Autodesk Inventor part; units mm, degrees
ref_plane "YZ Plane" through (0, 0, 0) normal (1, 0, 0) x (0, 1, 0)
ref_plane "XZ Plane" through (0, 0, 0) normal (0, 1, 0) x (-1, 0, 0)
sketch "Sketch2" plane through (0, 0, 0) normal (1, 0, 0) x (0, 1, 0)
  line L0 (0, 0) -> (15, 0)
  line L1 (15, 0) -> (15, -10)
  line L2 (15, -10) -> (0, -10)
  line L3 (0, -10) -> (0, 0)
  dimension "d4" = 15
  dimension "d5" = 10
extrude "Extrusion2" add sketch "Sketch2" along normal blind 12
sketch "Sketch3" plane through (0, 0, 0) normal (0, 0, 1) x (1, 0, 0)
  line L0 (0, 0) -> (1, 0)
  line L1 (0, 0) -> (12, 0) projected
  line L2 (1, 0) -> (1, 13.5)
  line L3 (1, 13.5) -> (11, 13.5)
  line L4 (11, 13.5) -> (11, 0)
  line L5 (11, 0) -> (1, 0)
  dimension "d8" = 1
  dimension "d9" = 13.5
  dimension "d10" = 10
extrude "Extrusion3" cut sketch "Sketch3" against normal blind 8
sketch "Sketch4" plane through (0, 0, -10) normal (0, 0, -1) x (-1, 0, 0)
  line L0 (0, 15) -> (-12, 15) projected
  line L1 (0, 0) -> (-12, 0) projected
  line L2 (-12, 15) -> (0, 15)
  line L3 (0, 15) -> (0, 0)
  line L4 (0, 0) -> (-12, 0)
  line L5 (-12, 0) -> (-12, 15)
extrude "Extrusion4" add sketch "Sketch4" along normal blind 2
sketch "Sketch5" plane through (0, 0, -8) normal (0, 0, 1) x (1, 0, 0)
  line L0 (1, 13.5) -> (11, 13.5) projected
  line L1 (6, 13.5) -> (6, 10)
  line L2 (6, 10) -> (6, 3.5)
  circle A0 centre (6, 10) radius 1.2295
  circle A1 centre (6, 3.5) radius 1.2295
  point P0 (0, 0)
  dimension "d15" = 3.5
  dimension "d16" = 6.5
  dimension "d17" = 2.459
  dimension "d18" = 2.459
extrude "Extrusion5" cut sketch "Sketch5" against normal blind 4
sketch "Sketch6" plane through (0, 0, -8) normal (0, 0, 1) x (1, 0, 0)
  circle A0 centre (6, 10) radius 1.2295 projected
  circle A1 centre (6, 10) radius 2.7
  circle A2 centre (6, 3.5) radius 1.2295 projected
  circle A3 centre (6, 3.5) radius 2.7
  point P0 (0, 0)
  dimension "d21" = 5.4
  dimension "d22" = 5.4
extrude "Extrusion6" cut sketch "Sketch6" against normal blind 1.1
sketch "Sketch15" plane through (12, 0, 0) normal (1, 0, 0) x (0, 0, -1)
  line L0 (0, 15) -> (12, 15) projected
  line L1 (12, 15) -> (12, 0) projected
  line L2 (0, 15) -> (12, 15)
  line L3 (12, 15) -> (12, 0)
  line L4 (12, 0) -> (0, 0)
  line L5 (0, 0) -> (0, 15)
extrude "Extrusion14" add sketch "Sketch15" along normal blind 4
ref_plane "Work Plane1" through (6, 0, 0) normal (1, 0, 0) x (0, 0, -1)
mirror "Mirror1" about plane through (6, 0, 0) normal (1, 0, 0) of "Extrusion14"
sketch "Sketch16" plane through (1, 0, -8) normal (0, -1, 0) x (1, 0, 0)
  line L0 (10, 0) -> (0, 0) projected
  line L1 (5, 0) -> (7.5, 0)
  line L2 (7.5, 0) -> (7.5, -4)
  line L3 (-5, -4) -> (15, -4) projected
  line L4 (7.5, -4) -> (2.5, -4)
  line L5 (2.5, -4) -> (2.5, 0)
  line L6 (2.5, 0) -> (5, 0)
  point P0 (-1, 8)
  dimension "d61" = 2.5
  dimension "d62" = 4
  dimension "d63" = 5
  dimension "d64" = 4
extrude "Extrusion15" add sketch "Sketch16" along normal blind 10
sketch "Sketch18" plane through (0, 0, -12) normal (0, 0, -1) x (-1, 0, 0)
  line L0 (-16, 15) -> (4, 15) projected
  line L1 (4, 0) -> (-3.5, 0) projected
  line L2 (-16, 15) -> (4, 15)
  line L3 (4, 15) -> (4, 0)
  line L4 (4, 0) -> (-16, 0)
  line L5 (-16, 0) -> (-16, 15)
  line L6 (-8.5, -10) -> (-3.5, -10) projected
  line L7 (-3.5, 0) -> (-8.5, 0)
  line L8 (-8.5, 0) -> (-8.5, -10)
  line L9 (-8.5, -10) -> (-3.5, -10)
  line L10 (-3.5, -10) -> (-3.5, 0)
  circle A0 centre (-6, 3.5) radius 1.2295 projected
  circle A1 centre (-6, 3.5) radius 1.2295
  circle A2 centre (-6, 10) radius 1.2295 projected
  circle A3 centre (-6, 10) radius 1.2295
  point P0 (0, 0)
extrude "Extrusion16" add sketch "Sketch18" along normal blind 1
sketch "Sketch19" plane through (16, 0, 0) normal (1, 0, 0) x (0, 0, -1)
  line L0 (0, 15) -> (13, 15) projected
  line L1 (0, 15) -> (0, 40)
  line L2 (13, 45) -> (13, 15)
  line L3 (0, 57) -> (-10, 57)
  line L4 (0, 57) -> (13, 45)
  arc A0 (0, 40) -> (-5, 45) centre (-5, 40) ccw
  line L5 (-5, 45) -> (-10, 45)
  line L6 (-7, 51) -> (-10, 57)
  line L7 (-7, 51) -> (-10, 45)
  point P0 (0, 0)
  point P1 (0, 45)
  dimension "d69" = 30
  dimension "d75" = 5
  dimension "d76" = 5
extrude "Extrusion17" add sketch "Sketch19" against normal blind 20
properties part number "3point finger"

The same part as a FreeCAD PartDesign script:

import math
import FreeCAD as App
import Part
import Sketcher

doc = App.newDocument("Part")
body = doc.addObject("PartDesign::Body", "Body")

sketch1 = body.newObject("Sketcher::SketchObject", "Sketch")
sketch1.AttachmentSupport = (doc.getObject("YZ_Plane"), [""])
sketch1.MapMode = "FlatFace"
sketch1.addGeometry([
    Part.LineSegment(App.Vector(15, 0, 0), App.Vector(0, 0, 0)),
    Part.LineSegment(App.Vector(0, 0, 0), App.Vector(0, -10, 0)),
    Part.LineSegment(App.Vector(0, -10, 0), App.Vector(15, -10, 0)),
    Part.LineSegment(App.Vector(15, -10, 0), App.Vector(15, 0, 0)),
], False)
sketch1.addConstraint([
    Sketcher.Constraint("Coincident", 0, 2, 1, 1),
    Sketcher.Constraint("Coincident", 1, 2, 2, 1),
    Sketcher.Constraint("Coincident", 2, 2, 3, 1),
    Sketcher.Constraint("Coincident", 3, 2, 0, 1),
    Sketcher.Constraint("Horizontal", 0),
    Sketcher.Constraint("Vertical", 1),
    Sketcher.Constraint("Horizontal", 2),
    Sketcher.Constraint("Vertical", 3),
    Sketcher.Constraint("Coincident", 0, 2, -1, 1),
    Sketcher.Constraint("DistanceX", 0, 2, 0, 1, 15.0),
    Sketcher.Constraint("DistanceY", 1, 2, 1, 1, 10.0),
])
pad1 = body.newObject("PartDesign::Pad", "Pad")
pad1.Profile = sketch1
pad1.Length = 12

sketch2 = body.newObject("Sketcher::SketchObject", "Sketch001")
sketch2.AttachmentSupport = (doc.getObject("XY_Plane"), [""])
sketch2.MapMode = "FlatFace"
sketch2.addGeometry([
    Part.LineSegment(App.Vector(1, 14, 0), App.Vector(1, 0, 0)),
    Part.LineSegment(App.Vector(1, 0, 0), App.Vector(11, 0, 0)),
    Part.LineSegment(App.Vector(11, 0, 0), App.Vector(11, 14, 0)),
    Part.LineSegment(App.Vector(11, 14, 0), App.Vector(1, 14, 0)),
], False)
sketch2.addConstraint([
    Sketcher.Constraint("Coincident", 0, 2, 1, 1),
    Sketcher.Constraint("Coincident", 1, 2, 2, 1),
    Sketcher.Constraint("Coincident", 2, 2, 3, 1),
    Sketcher.Constraint("Coincident", 3, 2, 0, 1),
    Sketcher.Constraint("Vertical", 0),
    Sketcher.Constraint("Horizontal", 1),
    Sketcher.Constraint("Vertical", 2),
    Sketcher.Constraint("Horizontal", 3),
    Sketcher.Constraint("PointOnObject", 0, 2, -1),
    Sketcher.Constraint("DistanceX", 1, 1, 1, 2, 10.0),
    Sketcher.Constraint("DistanceY", 0, 2, 0, 1, 13.5),
    Sketcher.Constraint("DistanceX", -1, 1, 0, 2, 1.0),
])
pocket1 = body.newObject("PartDesign::Pocket", "Pocket")
pocket1.Profile = sketch2
pocket1.Length = 8

sketch3 = body.newObject("Sketcher::SketchObject", "Sketch002")
sketch3.AttachmentSupport = (doc.getObject("XY_Plane"), [""])
sketch3.MapMode = "FlatFace"
sketch3.AttachmentOffset = App.Placement(App.Vector(0, 0, -10), App.Rotation())
sketch3.addGeometry([
    Part.LineSegment(App.Vector(0, 0, 0), App.Vector(0, 15, 0)),
    Part.LineSegment(App.Vector(0, 15, 0), App.Vector(12, 15, 0)),
    Part.LineSegment(App.Vector(12, 15, 0), App.Vector(12, 0, 0)),
    Part.LineSegment(App.Vector(12, 0, 0), App.Vector(0, 0, 0)),
], False)
sketch3.addConstraint([
    Sketcher.Constraint("Coincident", 0, 2, 1, 1),
    Sketcher.Constraint("Coincident", 1, 2, 2, 1),
    Sketcher.Constraint("Coincident", 2, 2, 3, 1),
    Sketcher.Constraint("Coincident", 3, 2, 0, 1),
    Sketcher.Constraint("Vertical", 0),
    Sketcher.Constraint("Horizontal", 1),
    Sketcher.Constraint("Vertical", 2),
    Sketcher.Constraint("Horizontal", 3),
    Sketcher.Constraint("Coincident", 3, 2, -1, 1),
    Sketcher.Constraint("DistanceX", 1, 1, 1, 2, 12.0),
    Sketcher.Constraint("DistanceY", 0, 1, 0, 2, 15.0),
])
pad2 = body.newObject("PartDesign::Pad", "Pad001")
pad2.Profile = sketch3
pad2.Length = 2
pad2.Reversed = True

sketch4 = body.newObject("Sketcher::SketchObject", "Sketch003")
sketch4.AttachmentSupport = (doc.getObject("XY_Plane"), [""])
sketch4.MapMode = "FlatFace"
sketch4.AttachmentOffset = App.Placement(App.Vector(0, 0, -8), App.Rotation())
sketch4.addGeometry([
    Part.Circle(App.Vector(6, 10, 0), App.Vector(0, 0, 1), 1.2),
    Part.Circle(App.Vector(6, 3.5, 0), App.Vector(0, 0, 1), 1.2),
], False)
sketch4.addConstraint([
    Sketcher.Constraint("Equal", 0, 1),
    Sketcher.Constraint("Vertical", 0, 3, 1, 3),
    Sketcher.Constraint("Diameter", 0, 2.459),
    Sketcher.Constraint("DistanceY", -1, 1, 1, 3, 3.5),
    Sketcher.Constraint("DistanceY", 1, 3, 0, 3, 6.5),
    Sketcher.Constraint("DistanceX", -1, 1, 0, 3, 6.0),
])
pocket2 = body.newObject("PartDesign::Pocket", "Pocket001")
pocket2.Profile = sketch4
pocket2.Length = 4

sketch5 = body.newObject("Sketcher::SketchObject", "Sketch004")
sketch5.AttachmentSupport = (doc.getObject("XY_Plane"), [""])
sketch5.MapMode = "FlatFace"
sketch5.AttachmentOffset = App.Placement(App.Vector(0, 0, -8), App.Rotation())
sketch5.addGeometry([
    Part.Circle(App.Vector(6, 10, 0), App.Vector(0, 0, 1), 2.7),
    Part.Circle(App.Vector(6, 10, 0), App.Vector(0, 0, 1), 1.2),
    Part.Circle(App.Vector(6, 3.5, 0), App.Vector(0, 0, 1), 2.7),
    Part.Circle(App.Vector(6, 3.5, 0), App.Vector(0, 0, 1), 1.2),
], False)
sketch5.addConstraint([
    Sketcher.Constraint("Coincident", 1, 3, 0, 3),
    Sketcher.Constraint("Coincident", 3, 3, 2, 3),
    Sketcher.Constraint("Equal", 0, 2),
    Sketcher.Constraint("Equal", 1, 3),
    Sketcher.Constraint("Vertical", 1, 3, 2, 3),
    Sketcher.Constraint("Diameter", 0, 5.4),
    Sketcher.Constraint("Diameter", 1, 2.459),
    Sketcher.Constraint("DistanceX", -1, 1, 0, 3, 6.0),
    Sketcher.Constraint("DistanceY", -1, 1, 0, 3, 10.0),
    Sketcher.Constraint("DistanceY", -1, 1, 2, 3, 3.5),
])
pocket3 = body.newObject("PartDesign::Pocket", "Pocket002")
pocket3.Profile = sketch5
pocket3.Length = 1.1

sketch6 = body.newObject("Sketcher::SketchObject", "Sketch005")
sketch6.AttachmentSupport = (doc.getObject("YZ_Plane"), [""])
sketch6.MapMode = "FlatFace"
sketch6.AttachmentOffset = App.Placement(App.Vector(0, 0, 12), App.Rotation())
sketch6.addGeometry([
    Part.LineSegment(App.Vector(15, -12, 0), App.Vector(15, 0, 0)),
    Part.LineSegment(App.Vector(15, 0, 0), App.Vector(0, 0, 0)),
    Part.LineSegment(App.Vector(0, 0, 0), App.Vector(0, -12, 0)),
    Part.LineSegment(App.Vector(0, -12, 0), App.Vector(15, -12, 0)),
], False)
sketch6.addConstraint([
    Sketcher.Constraint("Coincident", 0, 2, 1, 1),
    Sketcher.Constraint("Coincident", 1, 2, 2, 1),
    Sketcher.Constraint("Coincident", 2, 2, 3, 1),
    Sketcher.Constraint("Coincident", 3, 2, 0, 1),
    Sketcher.Constraint("Vertical", 0),
    Sketcher.Constraint("Horizontal", 1),
    Sketcher.Constraint("Vertical", 2),
    Sketcher.Constraint("Horizontal", 3),
    Sketcher.Constraint("Coincident", 1, 2, -1, 1),
    Sketcher.Constraint("DistanceX", 1, 2, 1, 1, 15.0),
    Sketcher.Constraint("DistanceY", 0, 1, 0, 2, 12.0),
])
pad3 = body.newObject("PartDesign::Pad", "Pad002")
pad3.Profile = sketch6
pad3.Length = 4
doc.recompute()

datumplane = body.newObject("PartDesign::Plane", "DatumPlane")
datumplane.AttachmentSupport = (doc.getObject("YZ_Plane"), [""])
datumplane.MapMode = "FlatFace"
datumplane.AttachmentOffset = App.Placement(App.Vector(0, 0, 6), App.Rotation())
mirrored = body.newObject("PartDesign::Mirrored", "Mirrored")
mirrored.Originals = [pad3]
mirrored.MirrorPlane = (datumplane, [""])
body.Tip = mirrored

sketch7 = body.newObject("Sketcher::SketchObject", "Sketch006")
sketch7.AttachmentSupport = (doc.getObject("XZ_Plane"), [""])
sketch7.MapMode = "FlatFace"
sketch7.addGeometry([
    Part.LineSegment(App.Vector(8.5, -12, 0), App.Vector(8.5, -8, 0)),
    Part.LineSegment(App.Vector(8.5, -8, 0), App.Vector(3.5, -8, 0)),
    Part.LineSegment(App.Vector(3.5, -8, 0), App.Vector(3.5, -12, 0)),
    Part.LineSegment(App.Vector(3.5, -12, 0), App.Vector(8.5, -12, 0)),
], False)
sketch7.addConstraint([
    Sketcher.Constraint("Coincident", 0, 2, 1, 1),
    Sketcher.Constraint("Coincident", 1, 2, 2, 1),
    Sketcher.Constraint("Coincident", 2, 2, 3, 1),
    Sketcher.Constraint("Coincident", 3, 2, 0, 1),
    Sketcher.Constraint("Vertical", 0),
    Sketcher.Constraint("Horizontal", 1),
    Sketcher.Constraint("Vertical", 2),
    Sketcher.Constraint("Horizontal", 3),
    Sketcher.Constraint("DistanceX", 1, 2, 1, 1, 5.0),
    Sketcher.Constraint("DistanceY", 0, 1, 0, 2, 4.0),
    Sketcher.Constraint("DistanceY", 0, 2, -1, 1, 8.0),
    Sketcher.Constraint("DistanceX", -1, 1, 0, 2, 8.5),
])
pad4 = body.newObject("PartDesign::Pad", "Pad003")
pad4.Profile = sketch7
pad4.Length = 10

sketch8 = body.newObject("Sketcher::SketchObject", "Sketch007")
sketch8.AttachmentSupport = (doc.getObject("XY_Plane"), [""])
sketch8.MapMode = "FlatFace"
sketch8.AttachmentOffset = App.Placement(App.Vector(0, 0, -12), App.Rotation())
sketch8.addGeometry([
    Part.LineSegment(App.Vector(-4, 15, 0), App.Vector(16, 15, 0)),
    Part.LineSegment(App.Vector(16, 15, 0), App.Vector(16, 0, 0)),
    Part.LineSegment(App.Vector(16, 0, 0), App.Vector(8.5, 0, 0)),
    Part.LineSegment(App.Vector(8.5, 0, 0), App.Vector(8.5, -10, 0)),
    Part.LineSegment(App.Vector(8.5, -10, 0), App.Vector(3.5, -10, 0)),
    Part.LineSegment(App.Vector(3.5, -10, 0), App.Vector(3.5, 0, 0)),
    Part.LineSegment(App.Vector(3.5, 0, 0), App.Vector(-4, 0, 0)),
    Part.LineSegment(App.Vector(-4, 0, 0), App.Vector(-4, 15, 0)),
    Part.Circle(App.Vector(6, 3.5, 0), App.Vector(0, 0, 1), 1.2),
    Part.Circle(App.Vector(6, 10, 0), App.Vector(0, 0, 1), 1.2),
], False)
sketch8.addConstraint([
    Sketcher.Constraint("Coincident", 0, 2, 1, 1),
    Sketcher.Constraint("Coincident", 1, 2, 2, 1),
    Sketcher.Constraint("Coincident", 2, 2, 3, 1),
    Sketcher.Constraint("Coincident", 3, 2, 4, 1),
    Sketcher.Constraint("Coincident", 4, 2, 5, 1),
    Sketcher.Constraint("Coincident", 5, 2, 6, 1),
    Sketcher.Constraint("Coincident", 6, 2, 7, 1),
    Sketcher.Constraint("Coincident", 7, 2, 0, 1),
    Sketcher.Constraint("Horizontal", 0),
    Sketcher.Constraint("Vertical", 1),
    Sketcher.Constraint("Horizontal", 2),
    Sketcher.Constraint("Vertical", 3),
    Sketcher.Constraint("Horizontal", 4),
    Sketcher.Constraint("Vertical", 5),
    Sketcher.Constraint("Horizontal", 6),
    Sketcher.Constraint("Vertical", 7),
    Sketcher.Constraint("Equal", 8, 9),
    Sketcher.Constraint("PointOnObject", 1, 2, -1),
    Sketcher.Constraint("PointOnObject", 5, 2, -1),
    Sketcher.Constraint("Vertical", 8, 3, 9, 3),
    Sketcher.Constraint("Equal", 2, 6),
    Sketcher.Constraint("DistanceX", 0, 1, 0, 2, 20.0),
    Sketcher.Constraint("DistanceX", 4, 2, 4, 1, 5.0),
    Sketcher.Constraint("DistanceY", 1, 2, 1, 1, 15.0),
    Sketcher.Constraint("DistanceY", 3, 2, 3, 1, 10.0),
    Sketcher.Constraint("Diameter", 8, 2.459),
    Sketcher.Constraint("DistanceX", -1, 1, 8, 3, 6.0),
    Sketcher.Constraint("DistanceY", -1, 1, 9, 3, 10.0),
    Sketcher.Constraint("DistanceX", -1, 1, 0, 2, 16.0),
    Sketcher.Constraint("DistanceY", -1, 1, 8, 3, 3.5),
])
pad5 = body.newObject("PartDesign::Pad", "Pad004")
pad5.Profile = sketch8
pad5.Length = 1
pad5.Reversed = True

sketch9 = body.newObject("Sketcher::SketchObject", "Sketch008")
sketch9.AttachmentSupport = (doc.getObject("YZ_Plane"), [""])
sketch9.MapMode = "FlatFace"
sketch9.AttachmentOffset = App.Placement(App.Vector(0, 0, 16), App.Rotation())
sketch9.addGeometry([
    Part.LineSegment(App.Vector(40, 0, 0), App.Vector(15, 0, 0)),
    Part.LineSegment(App.Vector(15, 0, 0), App.Vector(15, -13, 0)),
    Part.LineSegment(App.Vector(15, -13, 0), App.Vector(45, -13, 0)),
    Part.LineSegment(App.Vector(45, -13, 0), App.Vector(57, 0, 0)),
    Part.LineSegment(App.Vector(57, 0, 0), App.Vector(57, 10, 0)),
    Part.LineSegment(App.Vector(57, 10, 0), App.Vector(51, 7, 0)),
    Part.LineSegment(App.Vector(51, 7, 0), App.Vector(45, 10, 0)),
    Part.LineSegment(App.Vector(45, 10, 0), App.Vector(45, 5, 0)),
    Part.ArcOfCircle(Part.Circle(App.Vector(40, 5, 0), App.Vector(0, 0, 1), 5), math.radians(-90), math.radians(0)),
], False)
sketch9.addConstraint([
    Sketcher.Constraint("Coincident", 0, 2, 1, 1),
    Sketcher.Constraint("Coincident", 1, 2, 2, 1),
    Sketcher.Constraint("Coincident", 2, 2, 3, 1),
    Sketcher.Constraint("Coincident", 3, 2, 4, 1),
    Sketcher.Constraint("Coincident", 4, 2, 5, 1),
    Sketcher.Constraint("Coincident", 5, 2, 6, 1),
    Sketcher.Constraint("Coincident", 6, 2, 7, 1),
    Sketcher.Constraint("Tangent", 7, 2, 8, 2),
    Sketcher.Constraint("Tangent", 8, 1, 0, 1),
    Sketcher.Constraint("Horizontal", 0),
    Sketcher.Constraint("Vertical", 1),
    Sketcher.Constraint("Horizontal", 2),
    Sketcher.Constraint("Vertical", 4),
    Sketcher.Constraint("Vertical", 7),
    Sketcher.Constraint("PointOnObject", 0, 2, -1),
    Sketcher.Constraint("PointOnObject", 3, 2, -1),
    Sketcher.Constraint("Horizontal", 4, 2, 6, 2),
    Sketcher.Constraint("Vertical", 2, 2, 6, 2),
    Sketcher.Constraint("Equal", 5, 6),
    Sketcher.Constraint("Radius", 8, 5.0),
    Sketcher.Constraint("DistanceX", 2, 1, 2, 2, 30.0),
    Sketcher.Constraint("DistanceY", 7, 2, 7, 1, 5.0),
    Sketcher.Constraint("DistanceY", 1, 2, 1, 1, 13.0),
    Sketcher.Constraint("DistanceX", -1, 1, 8, 3, 40.0),
    Sketcher.Constraint("DistanceX", -1, 1, 3, 2, 57.0),
    Sketcher.Constraint("DistanceY", -1, 1, 5, 2, 7.0),
])
pad6 = body.newObject("PartDesign::Pad", "Pad005")
pad6.Profile = sketch9
pad6.Length = 20
pad6.Reversed = True

doc.recompute()
